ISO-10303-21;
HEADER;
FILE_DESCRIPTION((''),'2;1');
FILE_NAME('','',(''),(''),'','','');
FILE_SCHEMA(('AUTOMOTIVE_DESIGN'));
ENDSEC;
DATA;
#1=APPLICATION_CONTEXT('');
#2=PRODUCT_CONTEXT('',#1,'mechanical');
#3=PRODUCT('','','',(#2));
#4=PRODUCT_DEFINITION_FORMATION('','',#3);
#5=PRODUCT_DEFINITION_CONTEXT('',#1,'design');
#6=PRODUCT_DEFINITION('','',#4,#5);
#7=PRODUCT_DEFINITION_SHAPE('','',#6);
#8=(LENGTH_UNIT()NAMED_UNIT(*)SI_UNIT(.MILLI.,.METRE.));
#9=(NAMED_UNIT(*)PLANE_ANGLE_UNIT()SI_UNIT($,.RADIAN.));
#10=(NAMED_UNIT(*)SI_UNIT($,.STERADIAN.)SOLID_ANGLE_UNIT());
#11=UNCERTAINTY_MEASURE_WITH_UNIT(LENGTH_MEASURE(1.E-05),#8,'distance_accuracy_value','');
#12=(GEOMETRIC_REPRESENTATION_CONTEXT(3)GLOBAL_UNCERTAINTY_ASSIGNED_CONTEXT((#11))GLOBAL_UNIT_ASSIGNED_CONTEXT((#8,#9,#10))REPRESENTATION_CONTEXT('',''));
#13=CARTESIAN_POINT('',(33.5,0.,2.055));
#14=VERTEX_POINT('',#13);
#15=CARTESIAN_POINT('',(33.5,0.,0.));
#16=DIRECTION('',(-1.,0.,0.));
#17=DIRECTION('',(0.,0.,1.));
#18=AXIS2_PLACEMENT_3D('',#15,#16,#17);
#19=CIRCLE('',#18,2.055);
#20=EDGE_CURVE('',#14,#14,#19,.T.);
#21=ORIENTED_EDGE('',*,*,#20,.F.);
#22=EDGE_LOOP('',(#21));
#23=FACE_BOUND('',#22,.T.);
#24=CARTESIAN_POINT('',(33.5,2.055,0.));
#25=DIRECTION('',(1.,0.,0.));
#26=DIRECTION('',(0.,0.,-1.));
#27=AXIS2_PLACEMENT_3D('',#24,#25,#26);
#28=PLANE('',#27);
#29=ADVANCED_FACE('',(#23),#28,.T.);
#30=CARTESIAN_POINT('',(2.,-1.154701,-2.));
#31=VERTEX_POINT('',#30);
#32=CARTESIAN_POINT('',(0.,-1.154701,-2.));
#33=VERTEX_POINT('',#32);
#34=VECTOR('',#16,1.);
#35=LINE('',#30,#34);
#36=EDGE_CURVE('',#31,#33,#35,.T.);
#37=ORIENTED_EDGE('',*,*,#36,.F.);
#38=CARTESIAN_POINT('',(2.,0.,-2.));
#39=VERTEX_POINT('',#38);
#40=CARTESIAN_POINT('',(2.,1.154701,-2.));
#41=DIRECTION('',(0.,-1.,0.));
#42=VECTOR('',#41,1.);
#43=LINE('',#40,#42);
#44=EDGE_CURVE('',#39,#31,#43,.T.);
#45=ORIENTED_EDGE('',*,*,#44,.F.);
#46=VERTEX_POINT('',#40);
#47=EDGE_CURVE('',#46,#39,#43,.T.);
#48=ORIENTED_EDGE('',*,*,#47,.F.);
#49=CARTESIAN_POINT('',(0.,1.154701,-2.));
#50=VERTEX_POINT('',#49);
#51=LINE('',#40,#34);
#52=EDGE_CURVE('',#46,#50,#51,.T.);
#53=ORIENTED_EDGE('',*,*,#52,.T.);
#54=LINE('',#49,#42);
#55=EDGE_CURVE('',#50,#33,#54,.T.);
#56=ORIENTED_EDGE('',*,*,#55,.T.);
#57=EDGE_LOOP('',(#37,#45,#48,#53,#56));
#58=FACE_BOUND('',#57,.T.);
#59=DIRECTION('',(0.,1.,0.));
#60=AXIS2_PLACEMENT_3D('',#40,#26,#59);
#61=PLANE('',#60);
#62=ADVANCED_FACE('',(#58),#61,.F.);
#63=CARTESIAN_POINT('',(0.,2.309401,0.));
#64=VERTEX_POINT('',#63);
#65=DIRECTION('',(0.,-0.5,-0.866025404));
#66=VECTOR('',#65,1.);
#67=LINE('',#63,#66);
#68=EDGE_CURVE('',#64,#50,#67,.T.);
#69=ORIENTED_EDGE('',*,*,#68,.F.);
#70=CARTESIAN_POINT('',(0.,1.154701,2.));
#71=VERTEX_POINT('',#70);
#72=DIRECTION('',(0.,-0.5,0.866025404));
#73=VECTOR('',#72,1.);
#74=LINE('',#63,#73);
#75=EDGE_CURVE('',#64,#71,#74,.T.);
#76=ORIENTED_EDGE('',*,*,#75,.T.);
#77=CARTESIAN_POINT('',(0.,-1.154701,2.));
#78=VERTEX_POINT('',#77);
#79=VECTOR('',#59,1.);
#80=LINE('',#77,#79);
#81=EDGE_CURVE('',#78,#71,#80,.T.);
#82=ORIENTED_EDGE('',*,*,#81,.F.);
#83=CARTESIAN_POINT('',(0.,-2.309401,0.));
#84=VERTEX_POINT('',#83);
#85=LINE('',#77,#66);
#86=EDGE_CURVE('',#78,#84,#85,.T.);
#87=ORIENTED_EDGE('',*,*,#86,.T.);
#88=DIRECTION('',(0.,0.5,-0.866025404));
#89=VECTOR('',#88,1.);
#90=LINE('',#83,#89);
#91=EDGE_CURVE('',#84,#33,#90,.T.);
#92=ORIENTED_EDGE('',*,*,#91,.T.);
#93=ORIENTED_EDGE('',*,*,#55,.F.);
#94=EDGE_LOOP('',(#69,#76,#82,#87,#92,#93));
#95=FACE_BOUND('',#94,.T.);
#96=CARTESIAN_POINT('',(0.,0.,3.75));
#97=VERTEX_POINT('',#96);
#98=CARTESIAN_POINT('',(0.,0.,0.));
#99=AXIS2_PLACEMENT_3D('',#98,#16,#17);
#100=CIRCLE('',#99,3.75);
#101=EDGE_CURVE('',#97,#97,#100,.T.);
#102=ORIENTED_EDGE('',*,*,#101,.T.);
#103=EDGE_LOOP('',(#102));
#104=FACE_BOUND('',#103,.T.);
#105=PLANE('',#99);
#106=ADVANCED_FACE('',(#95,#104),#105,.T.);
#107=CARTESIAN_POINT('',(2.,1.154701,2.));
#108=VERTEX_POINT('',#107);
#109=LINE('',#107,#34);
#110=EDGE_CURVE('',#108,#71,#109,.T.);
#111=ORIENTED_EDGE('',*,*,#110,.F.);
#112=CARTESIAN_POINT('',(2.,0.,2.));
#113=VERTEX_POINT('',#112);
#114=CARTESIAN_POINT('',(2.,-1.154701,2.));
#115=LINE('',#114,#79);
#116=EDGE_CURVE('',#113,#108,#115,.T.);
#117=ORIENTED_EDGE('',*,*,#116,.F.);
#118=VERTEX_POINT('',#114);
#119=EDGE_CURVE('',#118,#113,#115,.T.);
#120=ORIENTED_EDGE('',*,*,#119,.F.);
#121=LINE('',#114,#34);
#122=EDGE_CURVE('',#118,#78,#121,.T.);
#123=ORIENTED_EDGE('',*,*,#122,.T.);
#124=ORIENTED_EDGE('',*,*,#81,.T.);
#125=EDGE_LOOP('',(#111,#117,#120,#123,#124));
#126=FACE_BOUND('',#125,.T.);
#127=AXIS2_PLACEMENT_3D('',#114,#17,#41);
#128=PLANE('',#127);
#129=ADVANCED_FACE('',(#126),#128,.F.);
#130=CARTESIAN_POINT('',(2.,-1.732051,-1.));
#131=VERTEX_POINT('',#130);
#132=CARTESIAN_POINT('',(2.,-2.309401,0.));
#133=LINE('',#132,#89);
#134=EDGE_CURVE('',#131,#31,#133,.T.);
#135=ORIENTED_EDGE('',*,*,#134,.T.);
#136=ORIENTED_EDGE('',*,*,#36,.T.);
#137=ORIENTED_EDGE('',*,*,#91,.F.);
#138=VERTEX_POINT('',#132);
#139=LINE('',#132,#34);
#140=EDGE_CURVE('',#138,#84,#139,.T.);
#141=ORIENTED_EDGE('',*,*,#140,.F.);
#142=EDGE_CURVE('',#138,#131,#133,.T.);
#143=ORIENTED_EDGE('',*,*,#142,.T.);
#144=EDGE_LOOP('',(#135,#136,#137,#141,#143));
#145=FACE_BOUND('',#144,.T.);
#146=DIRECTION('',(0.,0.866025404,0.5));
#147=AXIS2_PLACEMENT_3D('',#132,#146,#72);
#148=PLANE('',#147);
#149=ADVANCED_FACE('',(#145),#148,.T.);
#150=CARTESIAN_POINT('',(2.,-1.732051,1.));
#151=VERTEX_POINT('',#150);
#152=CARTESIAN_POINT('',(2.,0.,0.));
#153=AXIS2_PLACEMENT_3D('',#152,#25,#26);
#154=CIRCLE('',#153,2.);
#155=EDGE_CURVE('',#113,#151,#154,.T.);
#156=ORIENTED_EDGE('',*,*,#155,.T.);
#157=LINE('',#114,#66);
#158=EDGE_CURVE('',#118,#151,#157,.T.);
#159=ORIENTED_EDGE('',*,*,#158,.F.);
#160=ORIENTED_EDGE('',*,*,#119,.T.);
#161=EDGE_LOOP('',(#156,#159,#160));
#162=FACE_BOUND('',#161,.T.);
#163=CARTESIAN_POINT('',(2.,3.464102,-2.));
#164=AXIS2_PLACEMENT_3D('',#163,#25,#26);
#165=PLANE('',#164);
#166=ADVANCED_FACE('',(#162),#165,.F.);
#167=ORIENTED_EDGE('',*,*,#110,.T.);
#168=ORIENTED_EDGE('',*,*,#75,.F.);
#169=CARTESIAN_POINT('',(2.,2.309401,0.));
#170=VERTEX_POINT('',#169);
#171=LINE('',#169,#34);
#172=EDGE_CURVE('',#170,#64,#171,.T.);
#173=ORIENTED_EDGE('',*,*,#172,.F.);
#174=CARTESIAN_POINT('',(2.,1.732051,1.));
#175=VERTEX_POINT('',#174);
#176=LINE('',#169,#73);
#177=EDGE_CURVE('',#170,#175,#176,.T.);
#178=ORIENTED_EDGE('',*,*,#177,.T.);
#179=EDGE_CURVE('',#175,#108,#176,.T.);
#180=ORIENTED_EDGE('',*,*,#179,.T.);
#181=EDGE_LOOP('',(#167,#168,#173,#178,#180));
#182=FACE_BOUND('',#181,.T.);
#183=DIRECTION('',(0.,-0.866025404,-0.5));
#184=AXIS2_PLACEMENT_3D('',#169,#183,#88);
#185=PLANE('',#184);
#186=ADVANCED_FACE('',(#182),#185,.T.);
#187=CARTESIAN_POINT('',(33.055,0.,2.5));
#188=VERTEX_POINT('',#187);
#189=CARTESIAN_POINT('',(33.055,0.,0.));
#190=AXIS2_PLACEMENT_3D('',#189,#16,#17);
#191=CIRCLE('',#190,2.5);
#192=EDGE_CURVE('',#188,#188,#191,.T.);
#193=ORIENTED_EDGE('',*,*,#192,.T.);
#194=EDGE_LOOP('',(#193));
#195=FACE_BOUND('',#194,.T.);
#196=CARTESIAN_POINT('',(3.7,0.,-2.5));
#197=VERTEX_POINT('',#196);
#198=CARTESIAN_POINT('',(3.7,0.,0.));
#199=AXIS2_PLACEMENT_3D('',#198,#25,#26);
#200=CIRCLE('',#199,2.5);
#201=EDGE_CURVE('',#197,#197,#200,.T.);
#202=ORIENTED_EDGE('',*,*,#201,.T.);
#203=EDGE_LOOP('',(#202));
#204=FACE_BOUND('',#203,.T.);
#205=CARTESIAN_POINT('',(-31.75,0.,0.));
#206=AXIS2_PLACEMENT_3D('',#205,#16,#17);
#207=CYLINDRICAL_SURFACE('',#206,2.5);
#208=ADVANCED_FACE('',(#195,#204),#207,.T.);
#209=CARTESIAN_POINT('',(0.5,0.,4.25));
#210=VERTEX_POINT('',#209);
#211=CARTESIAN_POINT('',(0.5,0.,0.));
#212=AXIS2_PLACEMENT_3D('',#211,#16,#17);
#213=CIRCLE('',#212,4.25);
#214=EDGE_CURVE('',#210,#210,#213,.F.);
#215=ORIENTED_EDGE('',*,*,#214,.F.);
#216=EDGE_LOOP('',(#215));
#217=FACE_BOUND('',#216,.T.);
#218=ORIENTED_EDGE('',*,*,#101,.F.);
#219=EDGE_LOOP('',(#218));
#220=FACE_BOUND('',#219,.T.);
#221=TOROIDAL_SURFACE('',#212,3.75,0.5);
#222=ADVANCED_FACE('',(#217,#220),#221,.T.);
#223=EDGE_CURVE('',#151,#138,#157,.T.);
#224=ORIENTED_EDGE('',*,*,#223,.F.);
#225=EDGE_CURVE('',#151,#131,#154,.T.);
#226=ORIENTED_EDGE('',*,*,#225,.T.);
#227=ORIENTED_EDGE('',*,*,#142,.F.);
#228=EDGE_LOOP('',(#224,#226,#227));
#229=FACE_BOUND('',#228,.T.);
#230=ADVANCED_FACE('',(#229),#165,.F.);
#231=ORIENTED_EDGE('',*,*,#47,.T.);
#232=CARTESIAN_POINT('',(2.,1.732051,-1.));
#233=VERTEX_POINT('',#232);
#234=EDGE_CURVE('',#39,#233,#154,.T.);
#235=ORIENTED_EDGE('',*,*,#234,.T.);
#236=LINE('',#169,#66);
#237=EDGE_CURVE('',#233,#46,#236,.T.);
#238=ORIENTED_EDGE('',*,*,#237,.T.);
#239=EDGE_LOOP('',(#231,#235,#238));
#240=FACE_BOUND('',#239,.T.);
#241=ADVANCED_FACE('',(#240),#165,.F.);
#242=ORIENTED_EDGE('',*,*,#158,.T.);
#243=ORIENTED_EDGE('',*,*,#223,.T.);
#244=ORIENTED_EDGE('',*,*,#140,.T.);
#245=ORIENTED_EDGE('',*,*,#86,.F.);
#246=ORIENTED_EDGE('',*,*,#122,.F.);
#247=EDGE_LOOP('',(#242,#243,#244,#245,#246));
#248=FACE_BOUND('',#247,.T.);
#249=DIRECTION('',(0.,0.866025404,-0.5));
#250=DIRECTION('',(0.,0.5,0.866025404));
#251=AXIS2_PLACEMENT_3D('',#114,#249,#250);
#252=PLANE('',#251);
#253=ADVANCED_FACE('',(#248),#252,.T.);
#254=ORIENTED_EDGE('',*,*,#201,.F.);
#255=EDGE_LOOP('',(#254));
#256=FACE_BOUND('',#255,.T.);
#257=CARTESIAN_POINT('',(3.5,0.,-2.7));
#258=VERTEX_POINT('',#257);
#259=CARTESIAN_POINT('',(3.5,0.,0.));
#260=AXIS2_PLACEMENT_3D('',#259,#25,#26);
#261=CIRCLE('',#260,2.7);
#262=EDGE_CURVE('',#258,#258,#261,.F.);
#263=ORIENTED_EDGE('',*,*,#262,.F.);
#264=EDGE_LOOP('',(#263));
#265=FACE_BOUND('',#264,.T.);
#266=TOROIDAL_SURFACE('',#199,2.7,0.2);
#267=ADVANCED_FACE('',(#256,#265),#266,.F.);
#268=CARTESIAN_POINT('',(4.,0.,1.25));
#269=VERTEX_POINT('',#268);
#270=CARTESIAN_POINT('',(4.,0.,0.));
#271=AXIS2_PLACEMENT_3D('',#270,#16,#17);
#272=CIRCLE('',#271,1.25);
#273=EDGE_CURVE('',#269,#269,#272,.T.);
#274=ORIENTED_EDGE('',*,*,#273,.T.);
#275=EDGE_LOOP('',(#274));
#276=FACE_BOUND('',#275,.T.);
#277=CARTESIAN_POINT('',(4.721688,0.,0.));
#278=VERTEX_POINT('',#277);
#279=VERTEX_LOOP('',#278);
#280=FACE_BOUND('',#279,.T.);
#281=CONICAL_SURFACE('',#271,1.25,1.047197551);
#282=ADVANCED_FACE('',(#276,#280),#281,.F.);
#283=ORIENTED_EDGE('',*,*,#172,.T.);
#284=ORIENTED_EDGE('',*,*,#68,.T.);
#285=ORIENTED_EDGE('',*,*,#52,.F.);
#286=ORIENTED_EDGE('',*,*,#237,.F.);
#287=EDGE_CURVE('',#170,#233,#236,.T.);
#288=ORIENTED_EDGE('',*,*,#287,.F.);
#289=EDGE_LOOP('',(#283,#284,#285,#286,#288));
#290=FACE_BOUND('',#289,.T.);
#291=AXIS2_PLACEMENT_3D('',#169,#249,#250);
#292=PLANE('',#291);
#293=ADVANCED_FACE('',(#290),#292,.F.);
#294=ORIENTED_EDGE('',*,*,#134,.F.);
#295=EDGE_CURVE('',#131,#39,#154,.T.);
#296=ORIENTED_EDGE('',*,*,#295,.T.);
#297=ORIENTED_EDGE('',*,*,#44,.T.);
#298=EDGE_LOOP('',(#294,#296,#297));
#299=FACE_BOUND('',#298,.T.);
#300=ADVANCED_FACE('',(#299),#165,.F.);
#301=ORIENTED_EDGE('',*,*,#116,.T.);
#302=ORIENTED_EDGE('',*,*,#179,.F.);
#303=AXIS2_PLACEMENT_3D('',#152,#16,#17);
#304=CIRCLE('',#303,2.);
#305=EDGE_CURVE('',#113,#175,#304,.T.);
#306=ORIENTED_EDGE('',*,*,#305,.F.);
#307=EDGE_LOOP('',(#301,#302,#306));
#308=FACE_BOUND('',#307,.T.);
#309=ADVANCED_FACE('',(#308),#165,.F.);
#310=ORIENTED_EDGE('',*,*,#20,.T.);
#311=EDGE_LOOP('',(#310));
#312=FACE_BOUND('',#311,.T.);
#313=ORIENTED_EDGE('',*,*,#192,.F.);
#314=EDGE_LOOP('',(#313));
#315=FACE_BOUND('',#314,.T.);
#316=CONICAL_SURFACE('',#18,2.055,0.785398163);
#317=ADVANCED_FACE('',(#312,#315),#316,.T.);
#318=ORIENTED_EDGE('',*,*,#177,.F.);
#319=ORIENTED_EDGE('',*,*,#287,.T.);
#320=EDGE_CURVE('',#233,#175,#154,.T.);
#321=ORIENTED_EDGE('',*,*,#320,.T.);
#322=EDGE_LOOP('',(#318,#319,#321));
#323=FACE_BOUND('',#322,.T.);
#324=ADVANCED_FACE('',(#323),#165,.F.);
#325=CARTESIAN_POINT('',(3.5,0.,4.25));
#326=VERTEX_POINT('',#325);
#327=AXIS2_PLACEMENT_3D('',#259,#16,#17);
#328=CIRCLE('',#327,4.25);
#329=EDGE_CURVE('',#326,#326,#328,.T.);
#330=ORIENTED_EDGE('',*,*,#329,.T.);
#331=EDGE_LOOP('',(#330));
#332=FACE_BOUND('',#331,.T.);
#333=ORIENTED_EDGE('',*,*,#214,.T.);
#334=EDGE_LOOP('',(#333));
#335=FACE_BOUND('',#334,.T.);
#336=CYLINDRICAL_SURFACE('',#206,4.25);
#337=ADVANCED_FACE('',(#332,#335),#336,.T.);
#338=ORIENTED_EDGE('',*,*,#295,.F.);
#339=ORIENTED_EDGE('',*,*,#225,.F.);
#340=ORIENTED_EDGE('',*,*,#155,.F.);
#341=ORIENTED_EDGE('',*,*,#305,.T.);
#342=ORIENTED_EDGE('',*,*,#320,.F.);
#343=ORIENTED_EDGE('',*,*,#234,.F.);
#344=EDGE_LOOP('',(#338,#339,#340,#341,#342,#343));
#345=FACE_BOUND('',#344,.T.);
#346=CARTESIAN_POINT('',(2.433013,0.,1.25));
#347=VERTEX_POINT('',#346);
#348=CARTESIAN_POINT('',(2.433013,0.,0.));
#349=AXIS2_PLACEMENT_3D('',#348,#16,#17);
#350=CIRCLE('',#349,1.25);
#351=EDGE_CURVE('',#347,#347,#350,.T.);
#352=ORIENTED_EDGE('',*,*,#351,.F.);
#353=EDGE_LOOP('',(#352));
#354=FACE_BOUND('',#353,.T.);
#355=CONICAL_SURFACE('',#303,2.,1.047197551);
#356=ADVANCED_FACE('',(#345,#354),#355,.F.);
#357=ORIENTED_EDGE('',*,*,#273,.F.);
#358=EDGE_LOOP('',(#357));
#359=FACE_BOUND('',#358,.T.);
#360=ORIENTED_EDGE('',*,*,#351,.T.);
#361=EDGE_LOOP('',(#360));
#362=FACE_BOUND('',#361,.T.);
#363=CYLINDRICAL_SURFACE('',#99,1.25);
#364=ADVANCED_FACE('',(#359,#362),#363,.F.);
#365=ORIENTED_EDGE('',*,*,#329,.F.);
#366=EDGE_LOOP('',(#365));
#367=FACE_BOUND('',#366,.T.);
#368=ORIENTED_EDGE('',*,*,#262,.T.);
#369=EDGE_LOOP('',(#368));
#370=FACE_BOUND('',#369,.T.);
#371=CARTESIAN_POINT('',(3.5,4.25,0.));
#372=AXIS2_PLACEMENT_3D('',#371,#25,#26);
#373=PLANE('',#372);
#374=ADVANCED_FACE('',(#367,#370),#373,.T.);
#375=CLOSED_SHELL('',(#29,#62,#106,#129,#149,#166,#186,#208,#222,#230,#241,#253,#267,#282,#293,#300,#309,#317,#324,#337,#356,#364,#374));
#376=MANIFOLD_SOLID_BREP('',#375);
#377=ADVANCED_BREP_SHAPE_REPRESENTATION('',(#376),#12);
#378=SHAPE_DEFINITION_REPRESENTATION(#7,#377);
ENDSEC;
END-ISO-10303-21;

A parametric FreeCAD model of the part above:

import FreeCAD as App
import Part
import Sketcher
Q = App.Units.Quantity


def edges_at(feature, points):
    """Names of the edges that pass closest to the given points."""
    edges = feature.Shape.Edges
    near = lambda p: min(range(len(edges)), key=lambda i: edges[i].distToShape(Part.Vertex(*p))[0])
    return sorted({f"Edge{near(p) + 1}" for p in points})


def add_polygon(sketch, points):
    """Adds a closed chain of lines whose ends are joined by coincident constraints."""
    first, n = sketch.GeometryCount, len(points)
    for a, b in zip(points, points[1:] + points[:1]):
        sketch.addGeometry(Part.LineSegment(App.Vector(*a, 0), App.Vector(*b, 0)), False)
    for i in range(n):
        sketch.addConstraint(Sketcher.Constraint("Coincident", first + i, 2, first + (i + 1) % n, 1))

doc = App.newDocument("Part")
params = doc.addObject("Spreadsheet::Sheet", "Params")
for row, (alias, value) in enumerate([
    ("sketch1_width", "33.5 mm"),
    ("sketch1_width2", "3.5 mm"),
    ("sketch1_height", "4.25 mm"),
    ("sketch1_height2", "1.75 mm"),
    ("revolution_angle", "360 deg"),
    ("fillet_radius", "0.2 mm"),
    ("fillet2_radius", "0.5 mm"),
    ("pocket1_length", "2 mm"),
    ("sketch3_width", "2 mm"),
    ("groove_angle", "360 deg"),
], start=1):
    params.set(f"A{row}", alias)
    params.set(f"B{row}", "=" + value)
    params.setAlias(f"B{row}", alias)

body = doc.addObject("PartDesign::Body", "Body")

sketch1 = body.newObject("Sketcher::SketchObject", "Sketch")
sketch1.AttachmentSupport = (doc.getObject("XY_Plane"), [""])
sketch1.MapMode = "FlatFace"
add_polygon(sketch1, [(0, 4.2), (0, 0), (33.5, 0), (33.5, 2.1), (33.1, 2.5), (3.5, 2.5), (3.5, 4.2)])
sketch1.addConstraint(Sketcher.Constraint("Vertical", 0))
sketch1.addConstraint(Sketcher.Constraint("Horizontal", 1))
sketch1.addConstraint(Sketcher.Constraint("Vertical", 2))
sketch1.addConstraint(Sketcher.Constraint("Horizontal", 4))
sketch1.addConstraint(Sketcher.Constraint("Vertical", 5))
sketch1.addConstraint(Sketcher.Constraint("Horizontal", 6))
sketch1.addConstraint(Sketcher.Constraint("Coincident", 0, 2, -1, 1))
sketch1.addConstraint(Sketcher.Constraint("Angle", 3, Q("135 deg")))
sketch1.addConstraint(Sketcher.Constraint("DistanceX", 1, 1, 1, 2, 33.5))
sketch1.addConstraint(Sketcher.Constraint("DistanceX", 6, 2, 6, 1, 3.5))
sketch1.addConstraint(Sketcher.Constraint("DistanceY", 0, 2, 0, 1, 4.25))
sketch1.addConstraint(Sketcher.Constraint("DistanceY", 5, 1, 5, 2, 1.75))
sketch1.addConstraint(Sketcher.Constraint("DistanceX", 4, 2, 4, 1, 29.555))
sketch1.setExpression("Constraints[15]", "Params.sketch1_width")
sketch1.setExpression("Constraints[16]", "Params.sketch1_width2")
sketch1.setExpression("Constraints[17]", "Params.sketch1_height")
sketch1.setExpression("Constraints[18]", "Params.sketch1_height2")
revolution = body.newObject("PartDesign::Revolution", "Revolution")
revolution.Profile = sketch1
revolution.ReferenceAxis = (sketch1, ["H_Axis"])
revolution.setExpression("Angle", "Params.revolution_angle")
doc.recompute()

fillet = body.newObject("PartDesign::Fillet", "Fillet")
fillet.Base = (revolution, edges_at(revolution, [(3.5, 0, -2.5)]))
fillet.setExpression("Radius", "Params.fillet_radius")
doc.recompute()

fillet2 = body.newObject("PartDesign::Fillet", "Fillet001")
fillet2.Base = (fillet, edges_at(fillet, [(0, 0, -4.25)]))
fillet2.setExpression("Radius", "Params.fillet2_radius")

sketch2 = body.newObject("Sketcher::SketchObject", "Sketch001")
sketch2.AttachmentSupport = (doc.getObject("YZ_Plane"), [""])
sketch2.MapMode = "FlatFace"
add_polygon(sketch2, [(2.3, 0), (1.2, -2), (-1.2, -2), (-2.3, 0), (-1.2, 2), (1.2, 2)])
sketch2.addConstraint(Sketcher.Constraint("Horizontal", 1))
sketch2.addConstraint(Sketcher.Constraint("Horizontal", 4))
sketch2.addConstraint(Sketcher.Constraint("Symmetric", 0, 2, 3, 2, -1, 1))
sketch2.addConstraint(Sketcher.Constraint("Symmetric", 2, 2, 5, 2, -1, 1))
sketch2.addConstraint(Sketcher.Constraint("PointOnObject", 2, 2, -1))
sketch2.addConstraint(Sketcher.Constraint("Parallel", 2, 5))
sketch2.addConstraint(Sketcher.Constraint("Vertical", 1, 2, 3, 2))
sketch2.addConstraint(Sketcher.Constraint("Angle", 0, Q("-120 deg")))
sketch2.addConstraint(Sketcher.Constraint("DistanceY", 0, 2, -1, 1, 2.0))
sketch2.addConstraint(Sketcher.Constraint("DistanceX", 1, 2, 1, 1, 2.309401))
pocket1 = body.newObject("PartDesign::Pocket", "Pocket")
pocket1.Profile = sketch2
pocket1.setExpression("Length", "Params.pocket1_length")
pocket1.Reversed = True

sketch3 = body.newObject("Sketcher::SketchObject", "Sketch002")
sketch3.AttachmentSupport = (doc.getObject("XY_Plane"), [""])
sketch3.MapMode = "FlatFace"
add_polygon(sketch3, [(2, 2), (0, 2), (0, 0), (4.7, 0), (4, 1.2), (2.4, 1.2)])
sketch3.addConstraint(Sketcher.Constraint("Horizontal", 0))
sketch3.addConstraint(Sketcher.Constraint("Vertical", 1))
sketch3.addConstraint(Sketcher.Constraint("Horizontal", 2))
sketch3.addConstraint(Sketcher.Constraint("Horizontal", 4))
sketch3.addConstraint(Sketcher.Constraint("Coincident", 1, 2, -1, 1))
sketch3.addConstraint(Sketcher.Constraint("Parallel", 3, 5))
sketch3.addConstraint(Sketcher.Constraint("Equal", 0, 1))
sketch3.addConstraint(Sketcher.Constraint("DistanceX", 0, 2, 0, 1, 2.0))
sketch3.addConstraint(Sketcher.Constraint("Angle", 3, Q("120 deg")))
sketch3.addConstraint(Sketcher.Constraint("DistanceX", -1, 1, 3, 2, 4.0))
sketch3.addConstraint(Sketcher.Constraint("DistanceY", -1, 1, 3, 2, 1.25))
sketch3.setExpression("Constraints[13]", "Params.sketch3_width")
groove = body.newObject("PartDesign::Groove", "Groove")
groove.Profile = sketch3
groove.ReferenceAxis = (sketch3, ["H_Axis"])
groove.setExpression("Angle", "Params.groove_angle")

doc.recompute()
